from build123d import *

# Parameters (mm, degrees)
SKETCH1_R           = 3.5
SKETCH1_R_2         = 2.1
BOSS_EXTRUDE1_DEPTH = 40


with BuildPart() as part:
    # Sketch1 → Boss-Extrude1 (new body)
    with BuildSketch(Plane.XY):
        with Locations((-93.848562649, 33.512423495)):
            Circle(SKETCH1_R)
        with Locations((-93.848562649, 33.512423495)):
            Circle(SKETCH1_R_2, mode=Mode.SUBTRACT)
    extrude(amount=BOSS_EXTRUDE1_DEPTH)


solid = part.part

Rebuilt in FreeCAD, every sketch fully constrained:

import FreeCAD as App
import Part
import Sketcher

doc = App.newDocument("Part")
body = doc.addObject("PartDesign::Body", "Body")

sketch1 = doc.addObject("Sketcher::SketchObject", "Sketch")
body.addObject(sketch1)
sketch1.AttachmentSupport = (doc.XY_Plane, [""])
sketch1.MapMode = "FlatFace"
sketch1.addGeometry([
    Part.Circle(App.Vector(-93.8, 33.5, 0), App.Vector(0, 0, 1), 3.5),
    Part.Circle(App.Vector(-93.8, 33.5, 0), App.Vector(0, 0, 1), 2.1),
], False)
sketch1.addConstraint([
    Sketcher.Constraint("Coincident", 1, 3, 0, 3),
    Sketcher.Constraint("Diameter", 0, 7.0),
    Sketcher.Constraint("Diameter", 1, 4.2),
    Sketcher.Constraint("DistanceX", 0, 3, -1, 1, 93.848563),
    Sketcher.Constraint("DistanceY", -1, 1, 0, 3, 33.512423),
])
pad1 = doc.addObject("PartDesign::Pad", "Pad")
body.addObject(pad1)
pad1.Profile = sketch1
pad1.Length = 40

doc.recompute()
